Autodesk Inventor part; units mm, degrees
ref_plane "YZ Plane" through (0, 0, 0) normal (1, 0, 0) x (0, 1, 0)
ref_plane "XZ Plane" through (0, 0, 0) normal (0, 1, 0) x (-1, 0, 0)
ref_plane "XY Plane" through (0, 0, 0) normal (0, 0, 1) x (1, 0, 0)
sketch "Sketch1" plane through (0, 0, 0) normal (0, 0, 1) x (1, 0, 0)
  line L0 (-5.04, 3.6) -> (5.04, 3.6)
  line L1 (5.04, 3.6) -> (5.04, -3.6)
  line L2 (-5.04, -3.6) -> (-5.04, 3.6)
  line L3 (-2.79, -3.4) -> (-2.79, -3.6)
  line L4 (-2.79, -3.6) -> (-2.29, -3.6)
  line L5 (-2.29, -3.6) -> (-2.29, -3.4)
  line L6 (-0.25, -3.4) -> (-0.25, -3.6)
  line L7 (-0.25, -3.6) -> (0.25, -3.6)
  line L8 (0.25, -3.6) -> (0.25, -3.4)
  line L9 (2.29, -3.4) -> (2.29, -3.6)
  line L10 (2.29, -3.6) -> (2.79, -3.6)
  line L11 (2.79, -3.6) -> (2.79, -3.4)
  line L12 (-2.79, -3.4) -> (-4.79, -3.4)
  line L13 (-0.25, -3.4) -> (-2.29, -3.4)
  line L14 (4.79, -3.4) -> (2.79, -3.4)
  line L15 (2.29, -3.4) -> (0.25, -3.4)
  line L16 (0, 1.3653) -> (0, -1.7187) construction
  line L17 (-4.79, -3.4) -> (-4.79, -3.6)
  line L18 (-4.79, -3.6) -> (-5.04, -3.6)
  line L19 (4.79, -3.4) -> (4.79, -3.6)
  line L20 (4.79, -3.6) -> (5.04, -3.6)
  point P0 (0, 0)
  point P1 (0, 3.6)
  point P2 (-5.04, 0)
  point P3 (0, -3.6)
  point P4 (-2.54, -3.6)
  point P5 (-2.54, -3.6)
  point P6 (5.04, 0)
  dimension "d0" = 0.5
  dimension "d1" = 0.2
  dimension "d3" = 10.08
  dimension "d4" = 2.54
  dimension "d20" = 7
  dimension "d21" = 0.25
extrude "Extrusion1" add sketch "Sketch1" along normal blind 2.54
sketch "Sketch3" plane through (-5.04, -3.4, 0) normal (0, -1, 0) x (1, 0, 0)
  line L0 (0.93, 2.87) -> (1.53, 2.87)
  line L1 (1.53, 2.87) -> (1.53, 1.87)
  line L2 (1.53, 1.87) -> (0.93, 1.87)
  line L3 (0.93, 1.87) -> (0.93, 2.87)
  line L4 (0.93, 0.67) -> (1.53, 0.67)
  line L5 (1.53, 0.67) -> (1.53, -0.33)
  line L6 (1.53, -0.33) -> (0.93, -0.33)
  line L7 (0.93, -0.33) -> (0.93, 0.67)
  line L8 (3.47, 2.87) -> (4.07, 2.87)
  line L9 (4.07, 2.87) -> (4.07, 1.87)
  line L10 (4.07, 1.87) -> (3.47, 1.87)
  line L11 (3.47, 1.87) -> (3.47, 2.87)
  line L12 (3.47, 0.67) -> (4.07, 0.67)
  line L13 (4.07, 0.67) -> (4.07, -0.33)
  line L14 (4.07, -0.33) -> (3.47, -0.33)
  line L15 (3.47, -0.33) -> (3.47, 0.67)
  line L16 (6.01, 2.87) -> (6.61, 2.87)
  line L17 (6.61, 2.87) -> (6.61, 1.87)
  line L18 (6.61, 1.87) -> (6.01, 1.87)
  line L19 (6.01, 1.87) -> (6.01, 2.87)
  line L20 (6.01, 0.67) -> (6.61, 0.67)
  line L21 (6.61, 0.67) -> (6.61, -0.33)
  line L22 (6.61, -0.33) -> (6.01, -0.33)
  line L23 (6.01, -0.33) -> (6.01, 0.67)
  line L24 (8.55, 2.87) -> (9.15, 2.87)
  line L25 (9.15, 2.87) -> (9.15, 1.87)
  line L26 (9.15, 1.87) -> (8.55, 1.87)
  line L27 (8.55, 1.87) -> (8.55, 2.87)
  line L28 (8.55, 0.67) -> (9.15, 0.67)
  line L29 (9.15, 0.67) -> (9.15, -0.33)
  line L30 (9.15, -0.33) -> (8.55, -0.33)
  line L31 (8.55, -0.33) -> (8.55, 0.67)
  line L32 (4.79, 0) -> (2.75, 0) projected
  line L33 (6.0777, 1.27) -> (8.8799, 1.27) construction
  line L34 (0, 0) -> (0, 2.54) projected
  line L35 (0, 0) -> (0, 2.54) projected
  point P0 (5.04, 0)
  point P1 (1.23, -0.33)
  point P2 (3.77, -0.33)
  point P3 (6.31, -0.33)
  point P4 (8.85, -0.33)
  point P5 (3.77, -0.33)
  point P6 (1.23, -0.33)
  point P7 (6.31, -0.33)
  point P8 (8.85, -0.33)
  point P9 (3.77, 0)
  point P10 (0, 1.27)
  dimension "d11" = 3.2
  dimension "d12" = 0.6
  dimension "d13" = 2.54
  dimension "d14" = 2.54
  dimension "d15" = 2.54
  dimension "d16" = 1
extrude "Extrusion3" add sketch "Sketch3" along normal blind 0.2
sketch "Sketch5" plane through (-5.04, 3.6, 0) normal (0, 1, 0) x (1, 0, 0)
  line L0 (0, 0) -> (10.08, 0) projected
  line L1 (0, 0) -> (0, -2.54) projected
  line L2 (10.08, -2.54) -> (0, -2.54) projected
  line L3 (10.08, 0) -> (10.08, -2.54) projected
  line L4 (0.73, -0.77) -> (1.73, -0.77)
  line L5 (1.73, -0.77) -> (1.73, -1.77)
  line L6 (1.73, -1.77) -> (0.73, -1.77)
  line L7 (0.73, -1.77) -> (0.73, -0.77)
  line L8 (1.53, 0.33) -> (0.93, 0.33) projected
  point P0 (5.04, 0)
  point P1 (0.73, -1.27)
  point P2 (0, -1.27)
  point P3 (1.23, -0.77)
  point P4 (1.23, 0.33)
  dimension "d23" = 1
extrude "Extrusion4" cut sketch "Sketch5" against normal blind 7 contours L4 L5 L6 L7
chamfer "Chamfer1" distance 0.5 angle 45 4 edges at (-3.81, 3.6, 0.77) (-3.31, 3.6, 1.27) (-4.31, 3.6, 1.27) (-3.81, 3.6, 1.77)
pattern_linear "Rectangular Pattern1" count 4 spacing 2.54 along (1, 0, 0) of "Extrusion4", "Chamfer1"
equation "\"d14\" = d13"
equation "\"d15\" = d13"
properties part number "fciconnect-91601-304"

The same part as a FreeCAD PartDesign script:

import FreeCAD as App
import Part
import Sketcher

V = App.Vector
Q = App.Units.Quantity


def edges_at(feature, points):
    """Names of the edges that pass closest to the given points."""
    edges = feature.Shape.Edges
    near = lambda p: min(range(len(edges)), key=lambda i: edges[i].distToShape(Part.Vertex(*p))[0])
    return sorted({f"Edge{near(p) + 1}" for p in points})

doc = App.newDocument("Part")
params = doc.addObject("Spreadsheet::Sheet", "Params")
for row, (alias, value) in enumerate([
    ("sketch1_width", "0.5 mm"),
    ("sketch1_height", "0.2 mm"),
    ("sketch1_width2", "10.08 mm"),
    ("sketch1_width3", "0.25 mm"),
    ("sketch1_width4", "2 mm"),
    ("pad1_length", "2.54 mm"),
    ("sketch2_height", "1 mm"),
    ("sketch2_width", "0.6 mm"),
    ("pad2_length", "0.2 mm"),
    ("sketch3_width", "1 mm"),
    ("pocket1_length", "7 mm"),
    ("chamfer_size", "0.5 mm"),
    ("linearpattern_pitch", "2.54 mm"),
], start=1):
    params.set(f"A{row}", alias)
    params.set(f"B{row}", "=" + value)
    params.setAlias(f"B{row}", alias)

body = doc.addObject("PartDesign::Body", "Body")

# Sketch on XY plane
sketch1 = body.newObject("Sketcher::SketchObject", "Sketch")
sketch1.AttachmentSupport = (doc.getObject("XY_Plane"), [""])
sketch1.MapMode = "FlatFace"
sketch1.addGeometry(Part.LineSegment(V(5.04, 3.6, 0), V(-5.04, 3.6, 0)), False)
sketch1.addGeometry(Part.LineSegment(V(-5.04, 3.6, 0), V(-5.04, -3.6, 0)), False)
sketch1.addGeometry(Part.LineSegment(V(-5.04, -3.6, 0), V(-4.79, -3.6, 0)), False)
sketch1.addGeometry(Part.LineSegment(V(-4.79, -3.6, 0), V(-4.79, -3.4, 0)), False)
sketch1.addGeometry(Part.LineSegment(V(-4.79, -3.4, 0), V(-2.79, -3.4, 0)), False)
sketch1.addGeometry(Part.LineSegment(V(-2.79, -3.4, 0), V(-2.79, -3.6, 0)), False)
sketch1.addGeometry(Part.LineSegment(V(-2.79, -3.6, 0), V(-2.29, -3.6, 0)), False)
sketch1.addGeometry(Part.LineSegment(V(-2.29, -3.6, 0), V(-2.29, -3.4, 0)), False)
sketch1.addGeometry(Part.LineSegment(V(-2.29, -3.4, 0), V(-0.25, -3.4, 0)), False)
sketch1.addGeometry(Part.LineSegment(V(-0.25, -3.4, 0), V(-0.25, -3.6, 0)), False)
sketch1.addGeometry(Part.LineSegment(V(-0.25, -3.6, 0), V(0.25, -3.6, 0)), False)
sketch1.addGeometry(Part.LineSegment(V(0.25, -3.6, 0), V(0.25, -3.4, 0)), False)
sketch1.addGeometry(Part.LineSegment(V(0.25, -3.4, 0), V(2.29, -3.4, 0)), False)
sketch1.addGeometry(Part.LineSegment(V(2.29, -3.4, 0), V(2.29, -3.6, 0)), False)
sketch1.addGeometry(Part.LineSegment(V(2.29, -3.6, 0), V(2.79, -3.6, 0)), False)
sketch1.addGeometry(Part.LineSegment(V(2.79, -3.6, 0), V(2.79, -3.4, 0)), False)
sketch1.addGeometry(Part.LineSegment(V(2.79, -3.4, 0), V(4.79, -3.4, 0)), False)
sketch1.addGeometry(Part.LineSegment(V(4.79, -3.4, 0), V(4.79, -3.6, 0)), False)
sketch1.addGeometry(Part.LineSegment(V(4.79, -3.6, 0), V(5.04, -3.6, 0)), False)
sketch1.addGeometry(Part.LineSegment(V(5.04, -3.6, 0), V(5.04, 3.6, 0)), False)
sketch1.addConstraint(Sketcher.Constraint("Coincident", 0, 2, 1, 1))
sketch1.addConstraint(Sketcher.Constraint("Coincident", 1, 2, 2, 1))
sketch1.addConstraint(Sketcher.Constraint("Coincident", 2, 2, 3, 1))
sketch1.addConstraint(Sketcher.Constraint("Coincident", 3, 2, 4, 1))
sketch1.addConstraint(Sketcher.Constraint("Coincident", 4, 2, 5, 1))
sketch1.addConstraint(Sketcher.Constraint("Coincident", 5, 2, 6, 1))
sketch1.addConstraint(Sketcher.Constraint("Coincident", 6, 2, 7, 1))
sketch1.addConstraint(Sketcher.Constraint("Coincident", 7, 2, 8, 1))
sketch1.addConstraint(Sketcher.Constraint("Coincident", 8, 2, 9, 1))
sketch1.addConstraint(Sketcher.Constraint("Coincident", 9, 2, 10, 1))
sketch1.addConstraint(Sketcher.Constraint("Coincident", 10, 2, 11, 1))
sketch1.addConstraint(Sketcher.Constraint("Coincident", 11, 2, 12, 1))
sketch1.addConstraint(Sketcher.Constraint("Coincident", 12, 2, 13, 1))
sketch1.addConstraint(Sketcher.Constraint("Coincident", 13, 2, 14, 1))
sketch1.addConstraint(Sketcher.Constraint("Coincident", 14, 2, 15, 1))
sketch1.addConstraint(Sketcher.Constraint("Coincident", 15, 2, 16, 1))
sketch1.addConstraint(Sketcher.Constraint("Coincident", 16, 2, 17, 1))
sketch1.addConstraint(Sketcher.Constraint("Coincident", 17, 2, 18, 1))
sketch1.addConstraint(Sketcher.Constraint("Coincident", 18, 2, 19, 1))
sketch1.addConstraint(Sketcher.Constraint("Coincident", 19, 2, 0, 1))
sketch1.addConstraint(Sketcher.Constraint("Horizontal", 0))
sketch1.addConstraint(Sketcher.Constraint("Vertical", 1))
sketch1.addConstraint(Sketcher.Constraint("Horizontal", 2))
sketch1.addConstraint(Sketcher.Constraint("Vertical", 3))
sketch1.addConstraint(Sketcher.Constraint("Horizontal", 4))
sketch1.addConstraint(Sketcher.Constraint("Vertical", 5))
sketch1.addConstraint(Sketcher.Constraint("Horizontal", 6))
sketch1.addConstraint(Sketcher.Constraint("Vertical", 7))
sketch1.addConstraint(Sketcher.Constraint("Horizontal", 8))
sketch1.addConstraint(Sketcher.Constraint("Vertical", 9))
sketch1.addConstraint(Sketcher.Constraint("Horizontal", 10))
sketch1.addConstraint(Sketcher.Constraint("Vertical", 11))
sketch1.addConstraint(Sketcher.Constraint("Horizontal", 12))
sketch1.addConstraint(Sketcher.Constraint("Vertical", 13))
sketch1.addConstraint(Sketcher.Constraint("Horizontal", 14))
sketch1.addConstraint(Sketcher.Constraint("Vertical", 15))
sketch1.addConstraint(Sketcher.Constraint("Horizontal", 16))
sketch1.addConstraint(Sketcher.Constraint("Vertical", 17))
sketch1.addConstraint(Sketcher.Constraint("Horizontal", 18))
sketch1.addConstraint(Sketcher.Constraint("Vertical", 19))
sketch1.addConstraint(Sketcher.Constraint("Symmetric", 0, 2, 18, 2, -1, 1))
sketch1.addConstraint(Sketcher.Constraint("Symmetric", 8, 2, 11, 2, -2))
sketch1.addConstraint(Sketcher.Constraint("Symmetric", 6, 2, 13, 2, -2))
sketch1.addConstraint(Sketcher.Constraint("Symmetric", 4, 2, 15, 2, -2))
sketch1.addConstraint(Sketcher.Constraint("Symmetric", 2, 2, 17, 2, -2))
sketch1.addConstraint(Sketcher.Constraint("Horizontal", 2, 2, 5, 2))
sketch1.addConstraint(Sketcher.Constraint("Horizontal", 4, 2, 7, 2))
sketch1.addConstraint(Sketcher.Constraint("Horizontal", 6, 2, 9, 2))
sketch1.addConstraint(Sketcher.Constraint("Equal", 6, 10))
sketch1.addConstraint(Sketcher.Constraint("DistanceX", 6, 1, 6, 2, Q("0.5 mm")))
sketch1.addConstraint(Sketcher.Constraint("DistanceY", 3, 1, 3, 2, Q("0.2 mm")))
sketch1.addConstraint(Sketcher.Constraint("DistanceY", 3, 2, 0, 2, Q("7 mm")))
sketch1.addConstraint(Sketcher.Constraint("DistanceX", 0, 2, 0, 1, Q("10.08 mm")))
sketch1.addConstraint(Sketcher.Constraint("DistanceX", 2, 1, 2, 2, Q("0.25 mm")))
sketch1.addConstraint(Sketcher.Constraint("DistanceX", 4, 1, 4, 2, Q("2 mm")))
sketch1.setExpression("Constraints[49]", "Params.sketch1_width")
sketch1.setExpression("Constraints[50]", "Params.sketch1_height")
sketch1.setExpression("Constraints[52]", "Params.sketch1_width2")
sketch1.setExpression("Constraints[53]", "Params.sketch1_width3")
sketch1.setExpression("Constraints[54]", "Params.sketch1_width4")
pad1 = body.newObject("PartDesign::Pad", "Pad")
pad1.Profile = sketch1
pad1.setExpression("Length", "Params.pad1_length")

# Sketch on XZ plane
sketch2 = body.newObject("Sketcher::SketchObject", "Sketch001")
sketch2.AttachmentSupport = (doc.getObject("XZ_Plane"), [""])
sketch2.MapMode = "FlatFace"
sketch2.AttachmentOffset = App.Placement(V(0, 0, 3.4), App.Rotation())
sketch2.addGeometry(Part.LineSegment(V(-3.5, 2.9, 0), V(-4.1, 2.9, 0)), False)
sketch2.addGeometry(Part.LineSegment(V(-4.1, 2.9, 0), V(-4.1, 1.9, 0)), False)
sketch2.addGeometry(Part.LineSegment(V(-4.1, 1.9, 0), V(-3.5, 1.9, 0)), False)
sketch2.addGeometry(Part.LineSegment(V(-3.5, 1.9, 0), V(-3.5, 2.9, 0)), False)
sketch2.addGeometry(Part.LineSegment(V(-3.5, 0.7, 0), V(-4.1, 0.7, 0)), False)
sketch2.addGeometry(Part.LineSegment(V(-4.1, 0.7, 0), V(-4.1, -0.3, 0)), False)
sketch2.addGeometry(Part.LineSegment(V(-4.1, -0.3, 0), V(-3.5, -0.3, 0)), False)
sketch2.addGeometry(Part.LineSegment(V(-3.5, -0.3, 0), V(-3.5, 0.7, 0)), False)
sketch2.addGeometry(Part.LineSegment(V(-1, 2.9, 0), V(-1.6, 2.9, 0)), False)
sketch2.addGeometry(Part.LineSegment(V(-1.6, 2.9, 0), V(-1.6, 1.9, 0)), False)
sketch2.addGeometry(Part.LineSegment(V(-1.6, 1.9, 0), V(-1, 1.9, 0)), False)
sketch2.addGeometry(Part.LineSegment(V(-1, 1.9, 0), V(-1, 2.9, 0)), False)
sketch2.addGeometry(Part.LineSegment(V(-1, 0.7, 0), V(-1.6, 0.7, 0)), False)
sketch2.addGeometry(Part.LineSegment(V(-1.6, 0.7, 0), V(-1.6, -0.3, 0)), False)
sketch2.addGeometry(Part.LineSegment(V(-1.6, -0.3, 0), V(-1, -0.3, 0)), False)
sketch2.addGeometry(Part.LineSegment(V(-1, -0.3, 0), V(-1, 0.7, 0)), False)
sketch2.addGeometry(Part.LineSegment(V(1.6, 2.9, 0), V(1, 2.9, 0)), False)
sketch2.addGeometry(Part.LineSegment(V(1, 2.9, 0), V(1, 1.9, 0)), False)
sketch2.addGeometry(Part.LineSegment(V(1, 1.9, 0), V(1.6, 1.9, 0)), False)
sketch2.addGeometry(Part.LineSegment(V(1.6, 1.9, 0), V(1.6, 2.9, 0)), False)
sketch2.addGeometry(Part.LineSegment(V(1.6, 0.7, 0), V(1, 0.7, 0)), False)
sketch2.addGeometry(Part.LineSegment(V(1, 0.7, 0), V(1, -0.3, 0)), False)
sketch2.addGeometry(Part.LineSegment(V(1, -0.3, 0), V(1.6, -0.3, 0)), False)
sketch2.addGeometry(Part.LineSegment(V(1.6, -0.3, 0), V(1.6, 0.7, 0)), False)
sketch2.addGeometry(Part.LineSegment(V(4.1, 2.9, 0), V(3.5, 2.9, 0)), False)
sketch2.addGeometry(Part.LineSegment(V(3.5, 2.9, 0), V(3.5, 1.9, 0)), False)
sketch2.addGeometry(Part.LineSegment(V(3.5, 1.9, 0), V(4.1, 1.9, 0)), False)
sketch2.addGeometry(Part.LineSegment(V(4.1, 1.9, 0), V(4.1, 2.9, 0)), False)
sketch2.addGeometry(Part.LineSegment(V(4.1, 0.7, 0), V(3.5, 0.7, 0)), False)
sketch2.addGeometry(Part.LineSegment(V(3.5, 0.7, 0), V(3.5, -0.3, 0)), False)
sketch2.addGeometry(Part.LineSegment(V(3.5, -0.3, 0), V(4.1, -0.3, 0)), False)
sketch2.addGeometry(Part.LineSegment(V(4.1, -0.3, 0), V(4.1, 0.7, 0)), False)
sketch2.addConstraint(Sketcher.Constraint("Coincident", 0, 2, 1, 1))
sketch2.addConstraint(Sketcher.Constraint("Coincident", 1, 2, 2, 1))
sketch2.addConstraint(Sketcher.Constraint("Coincident", 2, 2, 3, 1))
sketch2.addConstraint(Sketcher.Constraint("Coincident", 3, 2, 0, 1))
sketch2.addConstraint(Sketcher.Constraint("Coincident", 4, 2, 5, 1))
sketch2.addConstraint(Sketcher.Constraint("Coincident", 5, 2, 6, 1))
sketch2.addConstraint(Sketcher.Constraint("Coincident", 6, 2, 7, 1))
sketch2.addConstraint(Sketcher.Constraint("Coincident", 7, 2, 4, 1))
sketch2.addConstraint(Sketcher.Constraint("Coincident", 8, 2, 9, 1))
sketch2.addConstraint(Sketcher.Constraint("Coincident", 9, 2, 10, 1))
sketch2.addConstraint(Sketcher.Constraint("Coincident", 10, 2, 11, 1))
sketch2.addConstraint(Sketcher.Constraint("Coincident", 11, 2, 8, 1))
sketch2.addConstraint(Sketcher.Constraint("Coincident", 12, 2, 13, 1))
sketch2.addConstraint(Sketcher.Constraint("Coincident", 13, 2, 14, 1))
sketch2.addConstraint(Sketcher.Constraint("Coincident", 14, 2, 15, 1))
sketch2.addConstraint(Sketcher.Constraint("Coincident", 15, 2, 12, 1))
sketch2.addConstraint(Sketcher.Constraint("Coincident", 16, 2, 17, 1))
sketch2.addConstraint(Sketcher.Constraint("Coincident", 17, 2, 18, 1))
sketch2.addConstraint(Sketcher.Constraint("Coincident", 18, 2, 19, 1))
sketch2.addConstraint(Sketcher.Constraint("Coincident", 19, 2, 16, 1))
sketch2.addConstraint(Sketcher.Constraint("Coincident", 20, 2, 21, 1))
sketch2.addConstraint(Sketcher.Constraint("Coincident", 21, 2, 22, 1))
sketch2.addConstraint(Sketcher.Constraint("Coincident", 22, 2, 23, 1))
sketch2.addConstraint(Sketcher.Constraint("Coincident", 23, 2, 20, 1))
sketch2.addConstraint(Sketcher.Constraint("Coincident", 24, 2, 25, 1))
sketch2.addConstraint(Sketcher.Constraint("Coincident", 25, 2, 26, 1))
sketch2.addConstraint(Sketcher.Constraint("Coincident", 26, 2, 27, 1))
sketch2.addConstraint(Sketcher.Constraint("Coincident", 27, 2, 24, 1))
sketch2.addConstraint(Sketcher.Constraint("Coincident", 28, 2, 29, 1))
sketch2.addConstraint(Sketcher.Constraint("Coincident", 29, 2, 30, 1))
sketch2.addConstraint(Sketcher.Constraint("Coincident", 30, 2, 31, 1))
sketch2.addConstraint(Sketcher.Constraint("Coincident", 31, 2, 28, 1))
sketch2.addConstraint(Sketcher.Constraint("Horizontal", 0))
sketch2.addConstraint(Sketcher.Constraint("Vertical", 1))
sketch2.addConstraint(Sketcher.Constraint("Horizontal", 2))
sketch2.addConstraint(Sketcher.Constraint("Vertical", 3))
sketch2.addConstraint(Sketcher.Constraint("Horizontal", 4))
sketch2.addConstraint(Sketcher.Constraint("Vertical", 5))
sketch2.addConstraint(Sketcher.Constraint("Horizontal", 6))
sketch2.addConstraint(Sketcher.Constraint("Vertical", 7))
sketch2.addConstraint(Sketcher.Constraint("Horizontal", 8))
sketch2.addConstraint(Sketcher.Constraint("Vertical", 9))
sketch2.addConstraint(Sketcher.Constraint("Horizontal", 10))
sketch2.addConstraint(Sketcher.Constraint("Vertical", 11))
sketch2.addConstraint(Sketcher.Constraint("Horizontal", 12))
sketch2.addConstraint(Sketcher.Constraint("Vertical", 13))
sketch2.addConstraint(Sketcher.Constraint("Horizontal", 14))
sketch2.addConstraint(Sketcher.Constraint("Vertical", 15))
sketch2.addConstraint(Sketcher.Constraint("Horizontal", 16))
sketch2.addConstraint(Sketcher.Constraint("Vertical", 17))
sketch2.addConstraint(Sketcher.Constraint("Horizontal", 18))
sketch2.addConstraint(Sketcher.Constraint("Vertical", 19))
sketch2.addConstraint(Sketcher.Constraint("Horizontal", 20))
sketch2.addConstraint(Sketcher.Constraint("Vertical", 21))
sketch2.addConstraint(Sketcher.Constraint("Horizontal", 22))
sketch2.addConstraint(Sketcher.Constraint("Vertical", 23))
sketch2.addConstraint(Sketcher.Constraint("Horizontal", 24))
sketch2.addConstraint(Sketcher.Constraint("Vertical", 25))
sketch2.addConstraint(Sketcher.Constraint("Horizontal", 26))
sketch2.addConstraint(Sketcher.Constraint("Vertical", 27))
sketch2.addConstraint(Sketcher.Constraint("Horizontal", 28))
sketch2.addConstraint(Sketcher.Constraint("Vertical", 29))
sketch2.addConstraint(Sketcher.Constraint("Horizontal", 30))
sketch2.addConstraint(Sketcher.Constraint("Vertical", 31))
sketch2.addConstraint(Sketcher.Constraint("Symmetric", 11, 2, 16, 2, -2))
sketch2.addConstraint(Sketcher.Constraint("Symmetric", 9, 2, 18, 2, -2))
sketch2.addConstraint(Sketcher.Constraint("Symmetric", 15, 2, 20, 2, -2))
sketch2.addConstraint(Sketcher.Constraint("Symmetric", 13, 2, 22, 2, -2))
sketch2.addConstraint(Sketcher.Constraint("Symmetric", 3, 2, 24, 2, -2))
sketch2.addConstraint(Sketcher.Constraint("Symmetric", 1, 2, 26, 2, -2))
sketch2.addConstraint(Sketcher.Constraint("Symmetric", 7, 2, 28, 2, -2))
sketch2.addConstraint(Sketcher.Constraint("Symmetric", 5, 2, 30, 2, -2))
sketch2.addConstraint(Sketcher.Constraint("Horizontal", 3, 2, 8, 2))
sketch2.addConstraint(Sketcher.Constraint("Horizontal", 2, 2, 9, 2))
sketch2.addConstraint(Sketcher.Constraint("Horizontal", 7, 2, 12, 2))
sketch2.addConstraint(Sketcher.Constraint("Horizontal", 6, 2, 13, 2))
sketch2.addConstraint(Sketcher.Constraint("Vertical", 1, 2, 4, 2))
sketch2.addConstraint(Sketcher.Constraint("Vertical", 3, 2, 6, 2))
sketch2.addConstraint(Sketcher.Constraint("Vertical", 9, 2, 12, 2))
sketch2.addConstraint(Sketcher.Constraint("Vertical", 11, 2, 14, 2))
sketch2.addConstraint(Sketcher.Constraint("Equal", 6, 8))
sketch2.addConstraint(Sketcher.Constraint("Equal", 3, 5))
sketch2.addConstraint(Sketcher.Constraint("DistanceY", 1, 2, 1, 1, Q("1 mm")))
sketch2.addConstraint(Sketcher.Constraint("DistanceX", 0, 2, 0, 1, Q("0.6 mm")))
sketch2.addConstraint(Sketcher.Constraint("DistanceY", 5, 2, 0, 2, Q("3.2 mm")))
sketch2.addConstraint(Sketcher.Constraint("DistanceX", 0, 2, 8, 2, Q("2.54 mm")))
sketch2.addConstraint(Sketcher.Constraint("DistanceX", 8, 2, 16, 2, Q("2.54 mm")))
sketch2.addConstraint(Sketcher.Constraint("DistanceY", -1, 1, 0, 2, Q("2.87 mm")))
sketch2.setExpression("Constraints[82]", "Params.sketch2_height")
sketch2.setExpression("Constraints[83]", "Params.sketch2_width")
pad2 = body.newObject("PartDesign::Pad", "Pad001")
pad2.Profile = sketch2
pad2.setExpression("Length", "Params.pad2_length")

# Sketch on XZ plane
sketch3 = body.newObject("Sketcher::SketchObject", "Sketch002")
sketch3.AttachmentSupport = (doc.getObject("XZ_Plane"), [""])
sketch3.MapMode = "FlatFace"
sketch3.AttachmentOffset = App.Placement(V(0, 0, -3.6), App.Rotation())
sketch3.addGeometry(Part.LineSegment(V(-3.3, 0.8, 0), V(-4.3, 0.8, 0)), False)
sketch3.addGeometry(Part.LineSegment(V(-4.3, 0.8, 0), V(-4.3, 1.8, 0)), False)
sketch3.addGeometry(Part.LineSegment(V(-4.3, 1.8, 0), V(-3.3, 1.8, 0)), False)
sketch3.addGeometry(Part.LineSegment(V(-3.3, 1.8, 0), V(-3.3, 0.8, 0)), False)
sketch3.addConstraint(Sketcher.Constraint("Coincident", 0, 2, 1, 1))
sketch3.addConstraint(Sketcher.Constraint("Coincident", 1, 2, 2, 1))
sketch3.addConstraint(Sketcher.Constraint("Coincident", 2, 2, 3, 1))
sketch3.addConstraint(Sketcher.Constraint("Coincident", 3, 2, 0, 1))
sketch3.addConstraint(Sketcher.Constraint("Horizontal", 0))
sketch3.addConstraint(Sketcher.Constraint("Vertical", 1))
sketch3.addConstraint(Sketcher.Constraint("Horizontal", 2))
sketch3.addConstraint(Sketcher.Constraint("Vertical", 3))
sketch3.addConstraint(Sketcher.Constraint("Equal", 2, 1))
sketch3.addConstraint(Sketcher.Constraint("DistanceX", 0, 2, 0, 1, Q("1 mm")))
sketch3.addConstraint(Sketcher.Constraint("DistanceX", 0, 2, -1, 1, Q("4.31 mm")))
sketch3.addConstraint(Sketcher.Constraint("DistanceY", -1, 1, 0, 2, Q("0.77 mm")))
sketch3.setExpression("Constraints[9]", "Params.sketch3_width")
pocket1 = body.newObject("PartDesign::Pocket", "Pocket")
pocket1.Profile = sketch3
pocket1.setExpression("Length", "Params.pocket1_length")
pocket1.Reversed = True
doc.recompute()

chamfer = body.newObject("PartDesign::Chamfer", "Chamfer")
chamfer.Base = (pocket1, edges_at(pocket1, [
    (-3.81, 3.6, 0.77),
    (-3.31, 3.6, 1.27),
    (-4.31, 3.6, 1.27),
    (-3.81, 3.6, 1.77),
]))
chamfer.setExpression("Size", "Params.chamfer_size")
doc.recompute()

linearpattern = body.newObject("PartDesign::LinearPattern", "LinearPattern")
linearpattern.Originals = [pocket1, chamfer]
linearpattern.Direction = (doc.getObject("X_Axis"), [""])
linearpattern.Mode = "offset"
linearpattern.setExpression("Offset", "Params.linearpattern_pitch")
linearpattern.Occurrences = 4
body.Tip = linearpattern

doc.recompute()
